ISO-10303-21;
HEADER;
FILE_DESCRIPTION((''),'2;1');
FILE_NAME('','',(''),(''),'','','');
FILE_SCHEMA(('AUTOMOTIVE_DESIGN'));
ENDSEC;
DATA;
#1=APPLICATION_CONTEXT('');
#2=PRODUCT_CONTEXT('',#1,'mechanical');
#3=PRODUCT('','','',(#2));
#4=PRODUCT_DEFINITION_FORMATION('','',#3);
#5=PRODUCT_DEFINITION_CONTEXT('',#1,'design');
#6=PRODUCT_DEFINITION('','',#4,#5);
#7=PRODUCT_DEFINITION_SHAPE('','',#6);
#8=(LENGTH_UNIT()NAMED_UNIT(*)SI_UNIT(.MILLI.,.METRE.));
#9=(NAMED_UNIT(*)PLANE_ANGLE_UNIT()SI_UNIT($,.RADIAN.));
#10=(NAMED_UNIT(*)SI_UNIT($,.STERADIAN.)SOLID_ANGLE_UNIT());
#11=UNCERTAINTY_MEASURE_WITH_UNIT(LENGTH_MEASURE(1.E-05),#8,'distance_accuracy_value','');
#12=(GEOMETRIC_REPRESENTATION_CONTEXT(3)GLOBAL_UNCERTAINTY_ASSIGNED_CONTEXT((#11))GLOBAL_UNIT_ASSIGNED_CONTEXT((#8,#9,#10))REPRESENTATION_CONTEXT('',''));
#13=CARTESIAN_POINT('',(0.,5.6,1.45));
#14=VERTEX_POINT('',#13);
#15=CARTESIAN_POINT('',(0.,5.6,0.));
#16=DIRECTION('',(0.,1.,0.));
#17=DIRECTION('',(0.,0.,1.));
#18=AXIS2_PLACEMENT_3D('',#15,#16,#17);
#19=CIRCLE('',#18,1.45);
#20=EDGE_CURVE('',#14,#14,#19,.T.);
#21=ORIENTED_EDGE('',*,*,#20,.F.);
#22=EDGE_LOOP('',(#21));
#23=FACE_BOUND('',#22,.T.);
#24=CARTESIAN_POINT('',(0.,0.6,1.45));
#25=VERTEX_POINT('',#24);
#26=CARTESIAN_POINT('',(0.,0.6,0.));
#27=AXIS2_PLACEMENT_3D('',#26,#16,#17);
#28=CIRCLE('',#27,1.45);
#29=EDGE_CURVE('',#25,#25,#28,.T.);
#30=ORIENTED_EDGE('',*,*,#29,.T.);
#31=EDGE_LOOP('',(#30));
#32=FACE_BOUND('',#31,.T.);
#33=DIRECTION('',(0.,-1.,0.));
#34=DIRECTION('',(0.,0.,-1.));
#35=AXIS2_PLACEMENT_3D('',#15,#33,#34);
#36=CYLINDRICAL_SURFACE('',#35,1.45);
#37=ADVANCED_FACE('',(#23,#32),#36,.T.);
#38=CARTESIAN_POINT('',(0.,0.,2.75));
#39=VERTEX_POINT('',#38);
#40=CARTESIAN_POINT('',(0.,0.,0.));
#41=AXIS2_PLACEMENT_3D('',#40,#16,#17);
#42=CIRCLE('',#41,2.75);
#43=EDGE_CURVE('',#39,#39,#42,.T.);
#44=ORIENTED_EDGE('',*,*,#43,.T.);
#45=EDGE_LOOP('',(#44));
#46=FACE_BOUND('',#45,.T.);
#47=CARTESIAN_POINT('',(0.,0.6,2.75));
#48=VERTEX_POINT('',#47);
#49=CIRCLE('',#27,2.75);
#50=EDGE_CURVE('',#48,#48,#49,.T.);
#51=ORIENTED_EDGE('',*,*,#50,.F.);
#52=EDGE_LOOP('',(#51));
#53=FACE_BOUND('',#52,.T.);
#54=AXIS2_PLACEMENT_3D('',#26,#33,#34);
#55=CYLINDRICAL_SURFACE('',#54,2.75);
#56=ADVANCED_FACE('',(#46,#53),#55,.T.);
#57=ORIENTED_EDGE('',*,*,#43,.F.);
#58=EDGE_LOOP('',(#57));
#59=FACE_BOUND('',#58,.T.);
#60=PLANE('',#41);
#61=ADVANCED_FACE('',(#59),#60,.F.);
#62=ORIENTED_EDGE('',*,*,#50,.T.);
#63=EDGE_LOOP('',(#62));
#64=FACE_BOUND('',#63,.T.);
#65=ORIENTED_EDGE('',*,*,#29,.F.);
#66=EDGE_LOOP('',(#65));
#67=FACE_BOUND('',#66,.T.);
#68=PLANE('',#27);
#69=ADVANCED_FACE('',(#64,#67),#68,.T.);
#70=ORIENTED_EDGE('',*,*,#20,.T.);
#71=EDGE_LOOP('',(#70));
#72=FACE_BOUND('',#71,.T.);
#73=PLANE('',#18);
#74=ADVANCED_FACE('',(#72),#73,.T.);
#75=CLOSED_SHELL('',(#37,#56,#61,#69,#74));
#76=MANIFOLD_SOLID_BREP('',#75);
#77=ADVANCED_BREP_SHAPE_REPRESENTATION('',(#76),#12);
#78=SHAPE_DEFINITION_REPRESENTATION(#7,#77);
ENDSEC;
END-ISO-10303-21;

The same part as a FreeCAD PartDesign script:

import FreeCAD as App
import Part
import Sketcher
from FreeCAD import Vector
Q = App.Units.Quantity

doc = App.newDocument("Part")
body = doc.addObject("PartDesign::Body", "Body")

# Sketch on XZ plane
sketch1 = doc.addObject("Sketcher::SketchObject", "Sketch")
body.addObject(sketch1)
sketch1.AttachmentSupport = (doc.XZ_Plane, [""])
sketch1.MapMode = "FlatFace"
sketch1.addGeometry(Part.Circle(Vector(0, 0, 0), Vector(0, 0, 1), 2.8), False)
sketch1.addConstraint([
    Sketcher.Constraint("Coincident", 0, 3, -1, 1),
    Sketcher.Constraint("Diameter", 0, Q("5.5 mm")),
])
pad1 = doc.addObject("PartDesign::Pad", "Pad")
body.addObject(pad1)
pad1.Profile = sketch1
pad1.Length = 0.6
pad1.Reversed = True

# Sketch on XZ plane
sketch2 = doc.addObject("Sketcher::SketchObject", "Sketch001")
body.addObject(sketch2)
sketch2.AttachmentSupport = (doc.XZ_Plane, [""])
sketch2.MapMode = "FlatFace"
sketch2.AttachmentOffset = App.Placement(Vector(0, 0, -0.6), App.Rotation())
sketch2.addGeometry(Part.Circle(Vector(0, 0, 0), Vector(0, 0, 1), 1.4), False)
sketch2.addConstraint([
    Sketcher.Constraint("Coincident", 0, 3, -1, 1),
    Sketcher.Constraint("Diameter", 0, Q("2.9 mm")),
])
pad2 = doc.addObject("PartDesign::Pad", "Pad001")
body.addObject(pad2)
pad2.Profile = sketch2
pad2.Length = 5
pad2.Reversed = True

doc.recompute()
